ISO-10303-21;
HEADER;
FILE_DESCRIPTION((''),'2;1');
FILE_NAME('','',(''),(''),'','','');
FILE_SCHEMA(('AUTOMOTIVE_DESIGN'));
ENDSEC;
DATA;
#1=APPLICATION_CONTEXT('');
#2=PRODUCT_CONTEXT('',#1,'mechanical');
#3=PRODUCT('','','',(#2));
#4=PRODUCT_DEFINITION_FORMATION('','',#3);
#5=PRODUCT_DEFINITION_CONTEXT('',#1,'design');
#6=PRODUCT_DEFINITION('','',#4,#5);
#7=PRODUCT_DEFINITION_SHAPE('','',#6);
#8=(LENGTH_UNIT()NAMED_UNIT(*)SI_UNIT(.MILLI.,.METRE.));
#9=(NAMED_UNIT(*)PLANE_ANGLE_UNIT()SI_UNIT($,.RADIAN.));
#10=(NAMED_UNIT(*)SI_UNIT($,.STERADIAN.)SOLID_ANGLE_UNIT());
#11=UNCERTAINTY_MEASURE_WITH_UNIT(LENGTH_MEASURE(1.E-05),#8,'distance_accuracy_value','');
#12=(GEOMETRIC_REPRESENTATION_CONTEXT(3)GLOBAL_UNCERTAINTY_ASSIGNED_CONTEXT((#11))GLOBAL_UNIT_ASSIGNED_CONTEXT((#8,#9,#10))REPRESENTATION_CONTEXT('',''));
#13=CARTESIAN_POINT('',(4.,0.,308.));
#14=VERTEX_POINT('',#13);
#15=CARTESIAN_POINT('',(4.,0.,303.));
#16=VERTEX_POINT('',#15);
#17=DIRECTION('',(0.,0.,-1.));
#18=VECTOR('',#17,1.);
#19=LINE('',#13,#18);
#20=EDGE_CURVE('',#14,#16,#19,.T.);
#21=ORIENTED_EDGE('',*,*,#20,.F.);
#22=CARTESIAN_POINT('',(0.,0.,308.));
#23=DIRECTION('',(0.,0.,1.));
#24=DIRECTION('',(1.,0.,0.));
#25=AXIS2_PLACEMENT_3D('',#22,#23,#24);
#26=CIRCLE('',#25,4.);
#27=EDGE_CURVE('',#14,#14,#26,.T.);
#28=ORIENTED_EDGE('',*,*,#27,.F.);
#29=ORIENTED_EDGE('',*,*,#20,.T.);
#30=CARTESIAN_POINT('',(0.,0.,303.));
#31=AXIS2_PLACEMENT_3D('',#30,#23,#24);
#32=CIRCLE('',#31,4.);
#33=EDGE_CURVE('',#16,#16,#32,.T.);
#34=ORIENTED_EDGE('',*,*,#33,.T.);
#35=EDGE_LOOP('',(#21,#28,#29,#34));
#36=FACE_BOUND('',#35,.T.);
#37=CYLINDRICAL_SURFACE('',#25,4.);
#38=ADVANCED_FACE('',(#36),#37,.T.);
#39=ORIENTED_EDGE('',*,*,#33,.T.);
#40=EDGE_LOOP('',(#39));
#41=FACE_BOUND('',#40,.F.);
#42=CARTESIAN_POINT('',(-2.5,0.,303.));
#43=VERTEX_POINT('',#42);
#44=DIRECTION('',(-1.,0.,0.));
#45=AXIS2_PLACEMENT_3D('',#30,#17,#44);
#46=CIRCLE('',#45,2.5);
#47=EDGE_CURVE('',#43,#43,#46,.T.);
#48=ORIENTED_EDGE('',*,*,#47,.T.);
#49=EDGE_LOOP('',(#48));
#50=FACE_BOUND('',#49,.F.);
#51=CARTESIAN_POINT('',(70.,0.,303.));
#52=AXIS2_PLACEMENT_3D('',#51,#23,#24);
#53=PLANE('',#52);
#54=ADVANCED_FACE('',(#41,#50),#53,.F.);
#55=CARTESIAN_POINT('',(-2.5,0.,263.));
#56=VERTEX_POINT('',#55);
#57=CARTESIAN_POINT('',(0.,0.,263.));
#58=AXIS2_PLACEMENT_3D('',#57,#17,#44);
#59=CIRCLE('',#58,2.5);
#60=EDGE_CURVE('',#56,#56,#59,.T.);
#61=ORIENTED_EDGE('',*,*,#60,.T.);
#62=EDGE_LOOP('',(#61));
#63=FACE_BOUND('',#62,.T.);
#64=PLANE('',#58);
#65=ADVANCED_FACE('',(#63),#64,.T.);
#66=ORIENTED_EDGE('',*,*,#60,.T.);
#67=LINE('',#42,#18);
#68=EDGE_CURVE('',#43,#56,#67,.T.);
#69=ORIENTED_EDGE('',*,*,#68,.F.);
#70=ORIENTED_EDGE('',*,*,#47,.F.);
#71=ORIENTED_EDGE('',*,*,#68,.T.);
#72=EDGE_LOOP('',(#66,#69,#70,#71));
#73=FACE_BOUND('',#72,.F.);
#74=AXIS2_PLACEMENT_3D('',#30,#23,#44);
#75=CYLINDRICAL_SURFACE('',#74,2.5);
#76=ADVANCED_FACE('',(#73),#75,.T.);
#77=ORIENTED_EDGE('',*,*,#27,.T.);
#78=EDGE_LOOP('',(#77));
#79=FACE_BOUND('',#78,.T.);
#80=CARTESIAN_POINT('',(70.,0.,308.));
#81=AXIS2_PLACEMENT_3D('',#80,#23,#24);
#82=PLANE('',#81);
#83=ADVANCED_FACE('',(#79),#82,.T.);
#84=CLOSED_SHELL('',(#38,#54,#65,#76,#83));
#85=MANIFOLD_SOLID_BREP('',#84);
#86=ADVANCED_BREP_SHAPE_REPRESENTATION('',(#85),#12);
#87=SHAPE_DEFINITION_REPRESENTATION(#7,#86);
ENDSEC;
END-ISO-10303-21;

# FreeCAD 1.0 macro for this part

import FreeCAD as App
import Part
import Sketcher

V = App.Vector
Q = App.Units.Quantity

doc = App.newDocument("Part")
body = doc.addObject("PartDesign::Body", "Body")

sketch1 = doc.addObject("Sketcher::SketchObject", "Sketch")
body.addObject(sketch1)
sketch1.AttachmentSupport = (doc.XY_Plane, [""])
sketch1.MapMode = "FlatFace"
sketch1.AttachmentOffset = App.Placement(V(0, 0, 308), App.Rotation())
sketch1.addGeometry(Part.Circle(V(0, 0, 0), V(0, 0, 1), 4), False)
sketch1.addConstraint(Sketcher.Constraint("Coincident", 0, 3, -1, 1))
sketch1.addConstraint(Sketcher.Constraint("Diameter", 0, Q("8 mm")))
pad1 = doc.addObject("PartDesign::Pad", "Pad")
body.addObject(pad1)
pad1.Profile = sketch1
pad1.Length = 5
pad1.Reversed = True

sketch2 = doc.addObject("Sketcher::SketchObject", "Sketch001")
body.addObject(sketch2)
sketch2.AttachmentSupport = (doc.XY_Plane, [""])
sketch2.MapMode = "FlatFace"
sketch2.AttachmentOffset = App.Placement(V(0, 0, 303), App.Rotation())
sketch2.addGeometry(Part.Circle(V(0, 0, 0), V(0, 0, 1), 2.5), False)
sketch2.addConstraint(Sketcher.Constraint("Coincident", 0, 3, -1, 1))
sketch2.addConstraint(Sketcher.Constraint("Diameter", 0, Q("5 mm")))
pad2 = doc.addObject("PartDesign::Pad", "Pad001")
body.addObject(pad2)
pad2.Profile = sketch2
pad2.Length = 40
pad2.Reversed = True

doc.recompute()
